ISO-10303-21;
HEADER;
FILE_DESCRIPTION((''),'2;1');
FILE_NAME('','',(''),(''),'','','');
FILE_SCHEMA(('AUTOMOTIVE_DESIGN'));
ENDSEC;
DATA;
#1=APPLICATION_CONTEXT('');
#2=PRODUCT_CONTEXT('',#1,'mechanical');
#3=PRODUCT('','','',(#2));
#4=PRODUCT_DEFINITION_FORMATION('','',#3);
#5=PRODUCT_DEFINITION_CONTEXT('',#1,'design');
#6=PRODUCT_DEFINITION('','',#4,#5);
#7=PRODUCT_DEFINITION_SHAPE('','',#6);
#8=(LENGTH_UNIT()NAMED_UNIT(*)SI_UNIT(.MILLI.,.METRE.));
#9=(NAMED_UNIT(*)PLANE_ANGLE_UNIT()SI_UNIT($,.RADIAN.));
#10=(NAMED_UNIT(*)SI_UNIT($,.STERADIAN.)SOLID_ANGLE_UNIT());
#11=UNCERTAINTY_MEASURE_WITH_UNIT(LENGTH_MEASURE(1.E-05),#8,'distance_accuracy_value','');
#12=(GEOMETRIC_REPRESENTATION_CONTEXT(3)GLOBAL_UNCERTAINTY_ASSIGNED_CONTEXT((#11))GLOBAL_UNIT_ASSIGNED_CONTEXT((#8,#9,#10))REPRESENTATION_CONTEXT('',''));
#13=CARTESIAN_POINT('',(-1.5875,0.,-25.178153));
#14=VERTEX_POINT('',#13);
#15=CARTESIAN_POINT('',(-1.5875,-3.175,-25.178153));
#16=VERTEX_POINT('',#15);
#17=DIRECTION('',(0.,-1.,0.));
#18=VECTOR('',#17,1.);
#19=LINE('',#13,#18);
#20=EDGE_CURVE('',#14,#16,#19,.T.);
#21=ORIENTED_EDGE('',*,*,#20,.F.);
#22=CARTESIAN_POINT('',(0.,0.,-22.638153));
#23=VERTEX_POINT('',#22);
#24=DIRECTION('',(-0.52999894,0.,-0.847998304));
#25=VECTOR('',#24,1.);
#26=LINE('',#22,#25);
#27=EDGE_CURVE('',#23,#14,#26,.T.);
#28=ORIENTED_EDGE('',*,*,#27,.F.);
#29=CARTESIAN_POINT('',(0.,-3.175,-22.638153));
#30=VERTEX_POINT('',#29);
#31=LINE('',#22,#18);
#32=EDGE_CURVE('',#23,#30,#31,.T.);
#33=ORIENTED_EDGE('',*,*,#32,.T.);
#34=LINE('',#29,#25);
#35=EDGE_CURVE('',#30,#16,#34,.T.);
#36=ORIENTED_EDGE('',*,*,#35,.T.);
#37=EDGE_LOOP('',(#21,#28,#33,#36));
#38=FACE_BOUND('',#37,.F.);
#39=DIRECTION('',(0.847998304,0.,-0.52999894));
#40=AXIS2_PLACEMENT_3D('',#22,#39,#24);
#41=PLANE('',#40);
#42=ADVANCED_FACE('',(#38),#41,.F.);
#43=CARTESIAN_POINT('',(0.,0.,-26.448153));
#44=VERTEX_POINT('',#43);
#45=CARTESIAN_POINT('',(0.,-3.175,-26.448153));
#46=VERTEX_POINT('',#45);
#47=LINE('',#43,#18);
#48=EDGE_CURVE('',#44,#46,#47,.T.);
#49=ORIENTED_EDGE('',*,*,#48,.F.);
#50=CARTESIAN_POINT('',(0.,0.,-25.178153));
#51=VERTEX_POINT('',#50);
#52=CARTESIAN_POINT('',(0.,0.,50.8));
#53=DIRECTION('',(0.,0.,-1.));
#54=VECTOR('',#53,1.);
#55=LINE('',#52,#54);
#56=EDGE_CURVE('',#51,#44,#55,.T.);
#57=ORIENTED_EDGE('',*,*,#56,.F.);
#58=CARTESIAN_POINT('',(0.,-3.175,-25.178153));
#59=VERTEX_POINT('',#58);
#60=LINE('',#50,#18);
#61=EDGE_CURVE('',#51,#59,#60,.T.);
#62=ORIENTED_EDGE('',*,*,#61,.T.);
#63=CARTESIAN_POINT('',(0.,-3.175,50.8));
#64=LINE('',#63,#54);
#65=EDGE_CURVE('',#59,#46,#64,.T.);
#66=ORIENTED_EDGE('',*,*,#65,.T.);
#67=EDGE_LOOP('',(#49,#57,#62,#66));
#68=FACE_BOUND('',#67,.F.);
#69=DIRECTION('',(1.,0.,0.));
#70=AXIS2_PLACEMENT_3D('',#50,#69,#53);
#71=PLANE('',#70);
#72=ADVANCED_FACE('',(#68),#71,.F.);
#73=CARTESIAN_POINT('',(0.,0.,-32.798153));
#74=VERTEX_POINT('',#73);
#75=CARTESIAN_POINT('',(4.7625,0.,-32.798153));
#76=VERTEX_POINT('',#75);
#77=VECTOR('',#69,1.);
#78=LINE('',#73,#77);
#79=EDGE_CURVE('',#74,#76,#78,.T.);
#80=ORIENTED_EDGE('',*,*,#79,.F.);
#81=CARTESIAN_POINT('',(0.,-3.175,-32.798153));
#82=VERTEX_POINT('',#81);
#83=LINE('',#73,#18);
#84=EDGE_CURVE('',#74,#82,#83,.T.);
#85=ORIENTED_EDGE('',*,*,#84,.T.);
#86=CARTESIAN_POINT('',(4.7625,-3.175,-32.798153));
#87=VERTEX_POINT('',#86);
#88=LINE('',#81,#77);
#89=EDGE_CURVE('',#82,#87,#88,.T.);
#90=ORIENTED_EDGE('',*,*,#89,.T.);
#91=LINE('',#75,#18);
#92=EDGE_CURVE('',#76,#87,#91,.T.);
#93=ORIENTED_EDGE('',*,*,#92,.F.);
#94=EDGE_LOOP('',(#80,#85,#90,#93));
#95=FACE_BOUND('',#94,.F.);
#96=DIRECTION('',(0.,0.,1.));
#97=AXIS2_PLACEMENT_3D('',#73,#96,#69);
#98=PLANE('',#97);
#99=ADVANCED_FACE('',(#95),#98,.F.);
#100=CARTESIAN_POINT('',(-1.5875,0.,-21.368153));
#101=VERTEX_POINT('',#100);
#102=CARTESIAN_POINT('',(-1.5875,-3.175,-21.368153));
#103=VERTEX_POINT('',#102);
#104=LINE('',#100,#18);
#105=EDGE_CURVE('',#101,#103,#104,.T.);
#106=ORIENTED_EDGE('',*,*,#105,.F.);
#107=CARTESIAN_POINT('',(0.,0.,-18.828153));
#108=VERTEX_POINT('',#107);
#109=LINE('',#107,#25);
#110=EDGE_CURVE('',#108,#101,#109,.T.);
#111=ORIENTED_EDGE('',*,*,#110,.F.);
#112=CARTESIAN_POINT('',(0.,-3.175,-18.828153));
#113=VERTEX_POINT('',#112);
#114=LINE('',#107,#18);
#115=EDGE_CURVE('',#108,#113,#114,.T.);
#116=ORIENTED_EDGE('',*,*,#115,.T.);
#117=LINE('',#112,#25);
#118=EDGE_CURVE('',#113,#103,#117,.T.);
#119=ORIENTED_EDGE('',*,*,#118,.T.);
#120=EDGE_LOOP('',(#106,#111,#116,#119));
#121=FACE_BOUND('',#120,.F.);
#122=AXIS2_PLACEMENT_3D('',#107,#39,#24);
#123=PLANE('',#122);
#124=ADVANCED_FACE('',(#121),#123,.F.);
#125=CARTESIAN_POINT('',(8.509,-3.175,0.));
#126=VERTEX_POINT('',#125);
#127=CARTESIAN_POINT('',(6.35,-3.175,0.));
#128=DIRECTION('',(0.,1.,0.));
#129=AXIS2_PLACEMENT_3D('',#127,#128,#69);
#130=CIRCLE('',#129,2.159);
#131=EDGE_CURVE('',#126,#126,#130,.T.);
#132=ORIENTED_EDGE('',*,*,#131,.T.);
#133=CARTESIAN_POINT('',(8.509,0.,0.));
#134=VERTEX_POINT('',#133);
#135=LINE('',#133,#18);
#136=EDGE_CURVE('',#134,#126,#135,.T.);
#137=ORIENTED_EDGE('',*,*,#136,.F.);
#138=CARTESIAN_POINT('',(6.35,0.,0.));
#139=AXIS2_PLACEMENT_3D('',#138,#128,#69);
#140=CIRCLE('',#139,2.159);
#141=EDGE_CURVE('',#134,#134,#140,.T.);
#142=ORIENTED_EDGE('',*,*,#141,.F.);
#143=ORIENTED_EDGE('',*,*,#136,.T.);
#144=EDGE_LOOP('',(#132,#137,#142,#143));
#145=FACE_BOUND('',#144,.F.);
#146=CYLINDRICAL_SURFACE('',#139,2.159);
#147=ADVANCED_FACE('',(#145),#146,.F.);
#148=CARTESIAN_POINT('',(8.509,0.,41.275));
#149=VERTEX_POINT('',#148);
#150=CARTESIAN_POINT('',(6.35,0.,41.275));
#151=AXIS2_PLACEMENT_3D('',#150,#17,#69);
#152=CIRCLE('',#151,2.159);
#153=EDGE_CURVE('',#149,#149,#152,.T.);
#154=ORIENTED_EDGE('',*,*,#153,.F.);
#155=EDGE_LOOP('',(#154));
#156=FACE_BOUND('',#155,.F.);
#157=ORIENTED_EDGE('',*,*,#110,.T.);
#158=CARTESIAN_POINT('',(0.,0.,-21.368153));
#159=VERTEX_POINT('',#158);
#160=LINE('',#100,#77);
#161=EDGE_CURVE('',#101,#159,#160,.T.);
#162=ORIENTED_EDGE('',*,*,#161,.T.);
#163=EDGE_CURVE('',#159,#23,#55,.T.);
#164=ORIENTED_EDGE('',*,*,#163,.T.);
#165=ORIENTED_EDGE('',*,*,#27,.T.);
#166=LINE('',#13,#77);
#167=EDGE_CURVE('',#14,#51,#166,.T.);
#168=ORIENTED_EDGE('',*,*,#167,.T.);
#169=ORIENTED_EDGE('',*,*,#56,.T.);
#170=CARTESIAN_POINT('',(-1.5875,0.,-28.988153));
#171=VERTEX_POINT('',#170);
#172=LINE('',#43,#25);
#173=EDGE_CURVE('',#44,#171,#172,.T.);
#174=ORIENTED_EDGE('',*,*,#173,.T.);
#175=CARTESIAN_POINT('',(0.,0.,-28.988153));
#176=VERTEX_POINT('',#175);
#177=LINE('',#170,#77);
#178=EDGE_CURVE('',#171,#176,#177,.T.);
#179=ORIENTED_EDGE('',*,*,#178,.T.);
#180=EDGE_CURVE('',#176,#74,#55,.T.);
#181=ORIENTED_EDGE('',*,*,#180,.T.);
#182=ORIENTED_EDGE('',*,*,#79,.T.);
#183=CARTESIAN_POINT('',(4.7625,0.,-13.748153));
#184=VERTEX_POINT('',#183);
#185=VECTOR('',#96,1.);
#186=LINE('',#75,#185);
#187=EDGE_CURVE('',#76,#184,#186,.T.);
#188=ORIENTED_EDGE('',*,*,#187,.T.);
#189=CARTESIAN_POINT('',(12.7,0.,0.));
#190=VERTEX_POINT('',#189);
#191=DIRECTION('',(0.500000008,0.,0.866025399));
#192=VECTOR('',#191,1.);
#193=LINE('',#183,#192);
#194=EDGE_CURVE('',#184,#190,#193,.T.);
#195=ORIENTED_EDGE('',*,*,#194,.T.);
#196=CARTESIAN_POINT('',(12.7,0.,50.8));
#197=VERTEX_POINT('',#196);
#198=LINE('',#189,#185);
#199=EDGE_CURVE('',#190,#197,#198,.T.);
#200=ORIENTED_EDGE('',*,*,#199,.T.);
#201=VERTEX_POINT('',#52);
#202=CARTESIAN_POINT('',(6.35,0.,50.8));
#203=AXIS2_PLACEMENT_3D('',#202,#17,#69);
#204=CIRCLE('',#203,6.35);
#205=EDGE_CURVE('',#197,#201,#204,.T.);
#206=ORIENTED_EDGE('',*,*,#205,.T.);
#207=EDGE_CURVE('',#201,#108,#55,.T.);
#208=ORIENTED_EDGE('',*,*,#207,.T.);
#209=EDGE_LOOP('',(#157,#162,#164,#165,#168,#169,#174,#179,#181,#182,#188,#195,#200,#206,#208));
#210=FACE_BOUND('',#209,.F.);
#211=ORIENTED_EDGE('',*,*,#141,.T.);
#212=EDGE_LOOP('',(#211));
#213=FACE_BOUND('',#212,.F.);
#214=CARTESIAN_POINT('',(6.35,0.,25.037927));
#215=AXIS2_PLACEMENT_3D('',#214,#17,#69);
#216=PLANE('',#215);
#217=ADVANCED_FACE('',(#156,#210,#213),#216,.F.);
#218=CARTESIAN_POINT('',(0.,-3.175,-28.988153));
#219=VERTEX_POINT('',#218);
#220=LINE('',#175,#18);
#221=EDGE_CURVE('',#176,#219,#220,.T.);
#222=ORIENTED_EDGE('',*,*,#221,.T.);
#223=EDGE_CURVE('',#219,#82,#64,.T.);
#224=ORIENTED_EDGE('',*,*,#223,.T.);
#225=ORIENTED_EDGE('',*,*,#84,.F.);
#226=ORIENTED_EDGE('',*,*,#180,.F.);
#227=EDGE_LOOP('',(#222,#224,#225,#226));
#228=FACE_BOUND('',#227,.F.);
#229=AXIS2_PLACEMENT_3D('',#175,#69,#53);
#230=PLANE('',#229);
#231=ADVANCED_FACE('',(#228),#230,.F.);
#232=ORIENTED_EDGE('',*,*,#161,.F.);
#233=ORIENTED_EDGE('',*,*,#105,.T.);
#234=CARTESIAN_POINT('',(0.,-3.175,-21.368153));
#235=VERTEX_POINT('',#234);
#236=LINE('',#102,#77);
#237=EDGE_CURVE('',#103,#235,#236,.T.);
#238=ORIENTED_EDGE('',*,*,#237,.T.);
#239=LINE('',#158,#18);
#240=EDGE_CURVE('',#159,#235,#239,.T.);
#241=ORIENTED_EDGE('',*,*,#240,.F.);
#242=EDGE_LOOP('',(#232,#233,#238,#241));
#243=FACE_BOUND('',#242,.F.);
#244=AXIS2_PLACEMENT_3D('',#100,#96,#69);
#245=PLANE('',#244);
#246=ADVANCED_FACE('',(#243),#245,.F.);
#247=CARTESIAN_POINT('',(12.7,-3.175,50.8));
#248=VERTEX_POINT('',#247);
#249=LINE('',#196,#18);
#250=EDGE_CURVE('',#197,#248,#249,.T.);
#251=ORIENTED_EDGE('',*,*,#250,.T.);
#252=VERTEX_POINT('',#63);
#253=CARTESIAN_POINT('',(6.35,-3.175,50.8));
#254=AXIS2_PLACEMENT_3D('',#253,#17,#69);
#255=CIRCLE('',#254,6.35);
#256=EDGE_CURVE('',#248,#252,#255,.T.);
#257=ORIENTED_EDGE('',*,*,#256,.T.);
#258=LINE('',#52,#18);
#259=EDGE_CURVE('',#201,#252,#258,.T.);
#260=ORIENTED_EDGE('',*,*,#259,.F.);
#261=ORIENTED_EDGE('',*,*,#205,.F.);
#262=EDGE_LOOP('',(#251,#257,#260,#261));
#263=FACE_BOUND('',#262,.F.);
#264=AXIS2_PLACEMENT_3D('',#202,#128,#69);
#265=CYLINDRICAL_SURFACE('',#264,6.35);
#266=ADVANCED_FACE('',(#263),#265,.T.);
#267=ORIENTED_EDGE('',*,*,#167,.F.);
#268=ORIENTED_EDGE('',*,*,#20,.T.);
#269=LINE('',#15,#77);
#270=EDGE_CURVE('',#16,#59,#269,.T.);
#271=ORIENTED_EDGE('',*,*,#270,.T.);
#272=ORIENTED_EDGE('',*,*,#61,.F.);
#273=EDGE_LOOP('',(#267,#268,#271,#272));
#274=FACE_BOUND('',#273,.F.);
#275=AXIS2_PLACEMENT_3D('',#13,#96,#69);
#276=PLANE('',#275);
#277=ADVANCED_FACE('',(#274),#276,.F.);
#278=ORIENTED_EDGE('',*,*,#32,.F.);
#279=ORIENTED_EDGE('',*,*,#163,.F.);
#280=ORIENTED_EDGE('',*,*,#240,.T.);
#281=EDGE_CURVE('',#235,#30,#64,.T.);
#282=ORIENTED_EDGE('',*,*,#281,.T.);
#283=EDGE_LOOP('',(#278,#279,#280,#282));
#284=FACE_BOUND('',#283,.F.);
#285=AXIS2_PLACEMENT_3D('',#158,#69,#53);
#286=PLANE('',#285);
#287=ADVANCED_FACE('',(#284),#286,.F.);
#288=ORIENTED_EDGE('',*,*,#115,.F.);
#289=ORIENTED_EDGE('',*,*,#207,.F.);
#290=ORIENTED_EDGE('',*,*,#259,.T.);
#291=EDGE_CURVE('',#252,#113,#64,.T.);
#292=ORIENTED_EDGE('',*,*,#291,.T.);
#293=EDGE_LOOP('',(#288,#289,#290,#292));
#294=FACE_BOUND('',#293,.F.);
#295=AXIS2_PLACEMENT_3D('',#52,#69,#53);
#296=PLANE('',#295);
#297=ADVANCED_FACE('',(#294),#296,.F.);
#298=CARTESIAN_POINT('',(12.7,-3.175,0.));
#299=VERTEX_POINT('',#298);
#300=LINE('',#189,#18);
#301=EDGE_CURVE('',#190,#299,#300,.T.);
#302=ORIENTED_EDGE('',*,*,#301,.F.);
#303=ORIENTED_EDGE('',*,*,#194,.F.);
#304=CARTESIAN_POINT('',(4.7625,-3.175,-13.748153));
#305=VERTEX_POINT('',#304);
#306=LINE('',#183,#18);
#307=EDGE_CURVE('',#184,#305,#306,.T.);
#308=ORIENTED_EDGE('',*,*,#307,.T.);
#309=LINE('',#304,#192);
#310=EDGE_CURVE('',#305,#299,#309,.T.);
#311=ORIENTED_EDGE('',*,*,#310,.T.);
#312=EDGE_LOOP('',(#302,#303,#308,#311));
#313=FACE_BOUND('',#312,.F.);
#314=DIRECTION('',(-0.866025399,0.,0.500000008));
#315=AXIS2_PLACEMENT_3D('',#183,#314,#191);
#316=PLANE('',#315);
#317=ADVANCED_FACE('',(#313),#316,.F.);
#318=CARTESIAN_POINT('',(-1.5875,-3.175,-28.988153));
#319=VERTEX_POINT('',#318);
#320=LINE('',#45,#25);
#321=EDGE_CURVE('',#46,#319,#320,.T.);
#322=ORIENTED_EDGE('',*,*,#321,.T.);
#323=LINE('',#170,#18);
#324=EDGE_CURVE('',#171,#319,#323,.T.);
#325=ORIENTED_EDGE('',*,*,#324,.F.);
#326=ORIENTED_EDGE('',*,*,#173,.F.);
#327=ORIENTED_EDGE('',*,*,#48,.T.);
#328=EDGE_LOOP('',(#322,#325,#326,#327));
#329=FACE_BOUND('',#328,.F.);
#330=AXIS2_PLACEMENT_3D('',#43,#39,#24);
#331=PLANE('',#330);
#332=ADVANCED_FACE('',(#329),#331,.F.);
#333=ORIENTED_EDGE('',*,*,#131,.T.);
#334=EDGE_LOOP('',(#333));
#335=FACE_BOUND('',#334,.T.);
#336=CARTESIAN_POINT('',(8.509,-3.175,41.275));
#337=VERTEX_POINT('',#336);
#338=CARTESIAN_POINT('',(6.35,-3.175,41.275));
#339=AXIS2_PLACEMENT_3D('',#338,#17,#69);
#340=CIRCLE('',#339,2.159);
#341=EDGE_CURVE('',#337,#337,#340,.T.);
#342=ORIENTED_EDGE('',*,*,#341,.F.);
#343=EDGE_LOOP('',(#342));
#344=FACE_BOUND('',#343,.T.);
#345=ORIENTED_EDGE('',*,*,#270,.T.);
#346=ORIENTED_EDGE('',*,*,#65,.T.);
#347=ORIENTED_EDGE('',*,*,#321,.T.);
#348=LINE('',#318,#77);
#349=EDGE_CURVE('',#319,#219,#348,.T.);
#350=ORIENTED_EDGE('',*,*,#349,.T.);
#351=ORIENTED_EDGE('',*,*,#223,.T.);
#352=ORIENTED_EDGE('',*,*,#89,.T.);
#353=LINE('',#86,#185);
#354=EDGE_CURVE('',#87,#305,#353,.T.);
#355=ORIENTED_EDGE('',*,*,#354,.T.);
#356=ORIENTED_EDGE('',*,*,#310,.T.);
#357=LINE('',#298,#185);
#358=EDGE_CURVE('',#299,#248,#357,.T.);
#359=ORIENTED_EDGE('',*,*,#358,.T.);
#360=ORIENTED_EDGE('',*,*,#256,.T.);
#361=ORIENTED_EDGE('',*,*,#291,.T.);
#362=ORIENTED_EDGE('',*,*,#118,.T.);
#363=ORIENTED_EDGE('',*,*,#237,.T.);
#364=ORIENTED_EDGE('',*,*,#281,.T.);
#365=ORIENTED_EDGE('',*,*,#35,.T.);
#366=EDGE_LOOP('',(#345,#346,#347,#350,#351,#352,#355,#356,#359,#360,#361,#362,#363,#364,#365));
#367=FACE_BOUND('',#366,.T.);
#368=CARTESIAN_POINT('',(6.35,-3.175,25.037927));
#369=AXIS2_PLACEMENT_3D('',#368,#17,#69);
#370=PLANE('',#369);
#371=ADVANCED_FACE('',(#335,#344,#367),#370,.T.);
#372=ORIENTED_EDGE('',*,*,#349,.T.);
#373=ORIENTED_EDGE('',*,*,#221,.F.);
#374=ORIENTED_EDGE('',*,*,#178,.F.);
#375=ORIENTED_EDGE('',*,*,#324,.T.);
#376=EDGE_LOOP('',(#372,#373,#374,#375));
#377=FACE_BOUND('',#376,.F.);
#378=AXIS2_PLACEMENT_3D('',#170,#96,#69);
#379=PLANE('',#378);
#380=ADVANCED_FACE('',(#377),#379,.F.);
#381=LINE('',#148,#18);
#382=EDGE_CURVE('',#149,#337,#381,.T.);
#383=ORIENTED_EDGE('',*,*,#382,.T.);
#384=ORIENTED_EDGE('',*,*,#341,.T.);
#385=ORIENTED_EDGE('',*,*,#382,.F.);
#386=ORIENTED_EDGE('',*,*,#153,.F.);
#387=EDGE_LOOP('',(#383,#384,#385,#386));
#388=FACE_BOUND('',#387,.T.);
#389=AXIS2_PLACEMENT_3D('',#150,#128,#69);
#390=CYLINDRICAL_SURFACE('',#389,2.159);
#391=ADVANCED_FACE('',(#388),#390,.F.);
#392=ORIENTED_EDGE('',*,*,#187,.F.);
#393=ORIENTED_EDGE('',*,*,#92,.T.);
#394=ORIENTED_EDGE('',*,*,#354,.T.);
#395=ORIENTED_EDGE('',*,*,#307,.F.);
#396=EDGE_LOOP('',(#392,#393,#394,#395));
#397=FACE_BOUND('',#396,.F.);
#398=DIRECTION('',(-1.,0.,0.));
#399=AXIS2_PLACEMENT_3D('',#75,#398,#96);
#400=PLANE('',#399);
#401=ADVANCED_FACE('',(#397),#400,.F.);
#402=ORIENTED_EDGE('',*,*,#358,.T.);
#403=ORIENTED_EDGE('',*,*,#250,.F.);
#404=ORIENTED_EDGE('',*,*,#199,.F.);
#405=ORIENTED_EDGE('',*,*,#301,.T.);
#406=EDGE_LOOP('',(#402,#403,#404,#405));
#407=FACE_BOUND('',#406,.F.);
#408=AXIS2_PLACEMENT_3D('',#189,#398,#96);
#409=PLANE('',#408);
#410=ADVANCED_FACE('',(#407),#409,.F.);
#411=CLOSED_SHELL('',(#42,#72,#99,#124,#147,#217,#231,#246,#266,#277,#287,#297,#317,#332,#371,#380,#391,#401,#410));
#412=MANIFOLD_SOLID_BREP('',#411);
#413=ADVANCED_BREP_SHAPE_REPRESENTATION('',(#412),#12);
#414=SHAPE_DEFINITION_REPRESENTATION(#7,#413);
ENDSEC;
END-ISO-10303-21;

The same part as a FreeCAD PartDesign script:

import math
import FreeCAD as App
import Part
import Sketcher
from FreeCAD import Vector
Q = App.Units.Quantity

doc = App.newDocument("Part")
params = doc.addObject("Spreadsheet::Sheet", "Params")
for row, (alias, value) in enumerate([
    ("sketch1_diameter", "0.17 in"),
    ("sketch1_height", "2 in"),
    ("sketch1_radius", "0.25 in"),
    ("sketch1_height2", "0.05 in"),
    ("sketch1_height3", "0.15 in"),
    ("pad1_length", "0.125 in"),
], start=1):
    params.set(f"A{row}", alias)
    params.set(f"B{row}", "=" + value)
    params.setAlias(f"B{row}", alias)

body = doc.addObject("PartDesign::Body", "Body")

sketch1 = body.newObject("Sketcher::SketchObject", "Sketch")
sketch1.AttachmentSupport = (doc.getObject("XZ_Plane"), [""])
sketch1.MapMode = "FlatFace"
sketch1.addGeometry(Part.LineSegment(Vector(0, 50.8, 0), Vector(0, -18.828153, 0)), False)
sketch1.addGeometry(Part.LineSegment(Vector(0, -18.828153, 0), Vector(-1.5875, -21.368153, 0)), False)
sketch1.addGeometry(Part.LineSegment(Vector(-1.5875, -21.368153, 0), Vector(0, -21.368153, 0)), False)
sketch1.addGeometry(Part.LineSegment(Vector(0, -21.368153, 0), Vector(0, -22.638153, 0)), False)
sketch1.addGeometry(Part.LineSegment(Vector(0, -22.638153, 0), Vector(-1.5875, -25.178153, 0)), False)
sketch1.addGeometry(Part.LineSegment(Vector(-1.5875, -25.178153, 0), Vector(0, -25.178153, 0)), False)
sketch1.addGeometry(Part.LineSegment(Vector(0, -25.178153, 0), Vector(0, -26.448153, 0)), False)
sketch1.addGeometry(Part.LineSegment(Vector(0, -26.448153, 0), Vector(-1.5875, -28.988153, 0)), False)
sketch1.addGeometry(Part.LineSegment(Vector(-1.5875, -28.988153, 0), Vector(0, -28.988153, 0)), False)
sketch1.addGeometry(Part.LineSegment(Vector(0, -28.988153, 0), Vector(0, -32.798153, 0)), False)
sketch1.addGeometry(Part.LineSegment(Vector(0, -32.798153, 0), Vector(4.7625, -32.798153, 0)), False)
sketch1.addGeometry(Part.LineSegment(Vector(4.7625, -32.798153, 0), Vector(4.7625, -13.748153, 0)), False)
sketch1.addGeometry(Part.LineSegment(Vector(4.7625, -13.748153, 0), Vector(12.7, 0, 0)), False)
sketch1.addGeometry(Part.LineSegment(Vector(12.7, 0, 0), Vector(12.7, 50.8, 0)), False)
sketch1.addGeometry(Part.ArcOfCircle(Part.Circle(Vector(6.35, 50.8, 0), Vector(0, 0, 1), 6.35), math.radians(0), math.radians(180)), False)
sketch1.addGeometry(Part.Circle(Vector(6.35, 0, 0), Vector(0, 0, 1), 2.159), False)
sketch1.addGeometry(Part.Circle(Vector(6.35, 41.275, 0), Vector(0, 0, 1), 2.159), False)
sketch1.addConstraint(Sketcher.Constraint("Coincident", 0, 2, 1, 1))
sketch1.addConstraint(Sketcher.Constraint("Coincident", 1, 2, 2, 1))
sketch1.addConstraint(Sketcher.Constraint("Coincident", 2, 2, 3, 1))
sketch1.addConstraint(Sketcher.Constraint("Coincident", 3, 2, 4, 1))
sketch1.addConstraint(Sketcher.Constraint("Coincident", 4, 2, 5, 1))
sketch1.addConstraint(Sketcher.Constraint("Coincident", 5, 2, 6, 1))
sketch1.addConstraint(Sketcher.Constraint("Coincident", 6, 2, 7, 1))
sketch1.addConstraint(Sketcher.Constraint("Coincident", 7, 2, 8, 1))
sketch1.addConstraint(Sketcher.Constraint("Coincident", 8, 2, 9, 1))
sketch1.addConstraint(Sketcher.Constraint("Coincident", 9, 2, 10, 1))
sketch1.addConstraint(Sketcher.Constraint("Coincident", 10, 2, 11, 1))
sketch1.addConstraint(Sketcher.Constraint("Coincident", 11, 2, 12, 1))
sketch1.addConstraint(Sketcher.Constraint("Coincident", 12, 2, 13, 1))
sketch1.addConstraint(Sketcher.Constraint("Tangent", 13, 2, 14, 1))
sketch1.addConstraint(Sketcher.Constraint("Tangent", 14, 2, 0, 1))
sketch1.addConstraint(Sketcher.Constraint("Vertical", 0))
sketch1.addConstraint(Sketcher.Constraint("Horizontal", 2))
sketch1.addConstraint(Sketcher.Constraint("Vertical", 3))
sketch1.addConstraint(Sketcher.Constraint("Horizontal", 5))
sketch1.addConstraint(Sketcher.Constraint("Vertical", 6))
sketch1.addConstraint(Sketcher.Constraint("Horizontal", 8))
sketch1.addConstraint(Sketcher.Constraint("Vertical", 9))
sketch1.addConstraint(Sketcher.Constraint("Horizontal", 10))
sketch1.addConstraint(Sketcher.Constraint("Vertical", 11))
sketch1.addConstraint(Sketcher.Constraint("Vertical", 13))
sketch1.addConstraint(Sketcher.Constraint("Equal", 15, 16))
sketch1.addConstraint(Sketcher.Constraint("PointOnObject", 15, 3, -1))
sketch1.addConstraint(Sketcher.Constraint("PointOnObject", 0, 2, -2))
sketch1.addConstraint(Sketcher.Constraint("PointOnObject", 2, 2, -2))
sketch1.addConstraint(Sketcher.Constraint("PointOnObject", 5, 2, -2))
sketch1.addConstraint(Sketcher.Constraint("PointOnObject", 8, 2, -2))
sketch1.addConstraint(Sketcher.Constraint("PointOnObject", 12, 2, -1))
sketch1.addConstraint(Sketcher.Constraint("Parallel", 1, 4))
sketch1.addConstraint(Sketcher.Constraint("Parallel", 4, 7))
sketch1.addConstraint(Sketcher.Constraint("Vertical", 14, 3, 15, 3))
sketch1.addConstraint(Sketcher.Constraint("Vertical", 15, 3, 16, 3))
sketch1.addConstraint(Sketcher.Constraint("Vertical", 1, 2, 4, 2))
sketch1.addConstraint(Sketcher.Constraint("Vertical", 4, 2, 7, 2))
sketch1.addConstraint(Sketcher.Constraint("Equal", 3, 6))
sketch1.addConstraint(Sketcher.Constraint("Diameter", 15, Q("0.17 in")))
sketch1.addConstraint(Sketcher.Constraint("DistanceY", 13, 1, 13, 2, Q("2 in")))
sketch1.addConstraint(Sketcher.Constraint("Radius", 14, Q("0.25 in")))
sketch1.addConstraint(Sketcher.Constraint("Angle", 12, Q("59.999999 deg")))
sketch1.addConstraint(Sketcher.Constraint("DistanceY", 3, 2, 3, 1, Q("0.05 in")))
sketch1.addConstraint(Sketcher.Constraint("DistanceY", 9, 2, 9, 1, Q("0.15 in")))
sketch1.addConstraint(Sketcher.Constraint("DistanceY", 11, 1, 11, 2, Q("0.75 in")))
sketch1.addConstraint(Sketcher.Constraint("DistanceY", 1, 2, 0, 2, Q("0.1 in")))
sketch1.addConstraint(Sketcher.Constraint("DistanceX", 2, 1, 2, 2, Q("0.0625 in")))
sketch1.addConstraint(Sketcher.Constraint("DistanceX", 10, 1, 10, 2, Q("0.1875 in")))
sketch1.addConstraint(Sketcher.Constraint("DistanceY", -1, 1, 16, 3, Q("1.625 in")))
sketch1.setExpression("Constraints[39]", "Params.sketch1_diameter")
sketch1.setExpression("Constraints[40]", "Params.sketch1_height")
sketch1.setExpression("Constraints[41]", "Params.sketch1_radius")
sketch1.setExpression("Constraints[43]", "Params.sketch1_height2")
sketch1.setExpression("Constraints[44]", "Params.sketch1_height3")
pad1 = body.newObject("PartDesign::Pad", "Pad")
pad1.Profile = sketch1
pad1.setExpression("Length", "Params.pad1_length")

doc.recompute()
